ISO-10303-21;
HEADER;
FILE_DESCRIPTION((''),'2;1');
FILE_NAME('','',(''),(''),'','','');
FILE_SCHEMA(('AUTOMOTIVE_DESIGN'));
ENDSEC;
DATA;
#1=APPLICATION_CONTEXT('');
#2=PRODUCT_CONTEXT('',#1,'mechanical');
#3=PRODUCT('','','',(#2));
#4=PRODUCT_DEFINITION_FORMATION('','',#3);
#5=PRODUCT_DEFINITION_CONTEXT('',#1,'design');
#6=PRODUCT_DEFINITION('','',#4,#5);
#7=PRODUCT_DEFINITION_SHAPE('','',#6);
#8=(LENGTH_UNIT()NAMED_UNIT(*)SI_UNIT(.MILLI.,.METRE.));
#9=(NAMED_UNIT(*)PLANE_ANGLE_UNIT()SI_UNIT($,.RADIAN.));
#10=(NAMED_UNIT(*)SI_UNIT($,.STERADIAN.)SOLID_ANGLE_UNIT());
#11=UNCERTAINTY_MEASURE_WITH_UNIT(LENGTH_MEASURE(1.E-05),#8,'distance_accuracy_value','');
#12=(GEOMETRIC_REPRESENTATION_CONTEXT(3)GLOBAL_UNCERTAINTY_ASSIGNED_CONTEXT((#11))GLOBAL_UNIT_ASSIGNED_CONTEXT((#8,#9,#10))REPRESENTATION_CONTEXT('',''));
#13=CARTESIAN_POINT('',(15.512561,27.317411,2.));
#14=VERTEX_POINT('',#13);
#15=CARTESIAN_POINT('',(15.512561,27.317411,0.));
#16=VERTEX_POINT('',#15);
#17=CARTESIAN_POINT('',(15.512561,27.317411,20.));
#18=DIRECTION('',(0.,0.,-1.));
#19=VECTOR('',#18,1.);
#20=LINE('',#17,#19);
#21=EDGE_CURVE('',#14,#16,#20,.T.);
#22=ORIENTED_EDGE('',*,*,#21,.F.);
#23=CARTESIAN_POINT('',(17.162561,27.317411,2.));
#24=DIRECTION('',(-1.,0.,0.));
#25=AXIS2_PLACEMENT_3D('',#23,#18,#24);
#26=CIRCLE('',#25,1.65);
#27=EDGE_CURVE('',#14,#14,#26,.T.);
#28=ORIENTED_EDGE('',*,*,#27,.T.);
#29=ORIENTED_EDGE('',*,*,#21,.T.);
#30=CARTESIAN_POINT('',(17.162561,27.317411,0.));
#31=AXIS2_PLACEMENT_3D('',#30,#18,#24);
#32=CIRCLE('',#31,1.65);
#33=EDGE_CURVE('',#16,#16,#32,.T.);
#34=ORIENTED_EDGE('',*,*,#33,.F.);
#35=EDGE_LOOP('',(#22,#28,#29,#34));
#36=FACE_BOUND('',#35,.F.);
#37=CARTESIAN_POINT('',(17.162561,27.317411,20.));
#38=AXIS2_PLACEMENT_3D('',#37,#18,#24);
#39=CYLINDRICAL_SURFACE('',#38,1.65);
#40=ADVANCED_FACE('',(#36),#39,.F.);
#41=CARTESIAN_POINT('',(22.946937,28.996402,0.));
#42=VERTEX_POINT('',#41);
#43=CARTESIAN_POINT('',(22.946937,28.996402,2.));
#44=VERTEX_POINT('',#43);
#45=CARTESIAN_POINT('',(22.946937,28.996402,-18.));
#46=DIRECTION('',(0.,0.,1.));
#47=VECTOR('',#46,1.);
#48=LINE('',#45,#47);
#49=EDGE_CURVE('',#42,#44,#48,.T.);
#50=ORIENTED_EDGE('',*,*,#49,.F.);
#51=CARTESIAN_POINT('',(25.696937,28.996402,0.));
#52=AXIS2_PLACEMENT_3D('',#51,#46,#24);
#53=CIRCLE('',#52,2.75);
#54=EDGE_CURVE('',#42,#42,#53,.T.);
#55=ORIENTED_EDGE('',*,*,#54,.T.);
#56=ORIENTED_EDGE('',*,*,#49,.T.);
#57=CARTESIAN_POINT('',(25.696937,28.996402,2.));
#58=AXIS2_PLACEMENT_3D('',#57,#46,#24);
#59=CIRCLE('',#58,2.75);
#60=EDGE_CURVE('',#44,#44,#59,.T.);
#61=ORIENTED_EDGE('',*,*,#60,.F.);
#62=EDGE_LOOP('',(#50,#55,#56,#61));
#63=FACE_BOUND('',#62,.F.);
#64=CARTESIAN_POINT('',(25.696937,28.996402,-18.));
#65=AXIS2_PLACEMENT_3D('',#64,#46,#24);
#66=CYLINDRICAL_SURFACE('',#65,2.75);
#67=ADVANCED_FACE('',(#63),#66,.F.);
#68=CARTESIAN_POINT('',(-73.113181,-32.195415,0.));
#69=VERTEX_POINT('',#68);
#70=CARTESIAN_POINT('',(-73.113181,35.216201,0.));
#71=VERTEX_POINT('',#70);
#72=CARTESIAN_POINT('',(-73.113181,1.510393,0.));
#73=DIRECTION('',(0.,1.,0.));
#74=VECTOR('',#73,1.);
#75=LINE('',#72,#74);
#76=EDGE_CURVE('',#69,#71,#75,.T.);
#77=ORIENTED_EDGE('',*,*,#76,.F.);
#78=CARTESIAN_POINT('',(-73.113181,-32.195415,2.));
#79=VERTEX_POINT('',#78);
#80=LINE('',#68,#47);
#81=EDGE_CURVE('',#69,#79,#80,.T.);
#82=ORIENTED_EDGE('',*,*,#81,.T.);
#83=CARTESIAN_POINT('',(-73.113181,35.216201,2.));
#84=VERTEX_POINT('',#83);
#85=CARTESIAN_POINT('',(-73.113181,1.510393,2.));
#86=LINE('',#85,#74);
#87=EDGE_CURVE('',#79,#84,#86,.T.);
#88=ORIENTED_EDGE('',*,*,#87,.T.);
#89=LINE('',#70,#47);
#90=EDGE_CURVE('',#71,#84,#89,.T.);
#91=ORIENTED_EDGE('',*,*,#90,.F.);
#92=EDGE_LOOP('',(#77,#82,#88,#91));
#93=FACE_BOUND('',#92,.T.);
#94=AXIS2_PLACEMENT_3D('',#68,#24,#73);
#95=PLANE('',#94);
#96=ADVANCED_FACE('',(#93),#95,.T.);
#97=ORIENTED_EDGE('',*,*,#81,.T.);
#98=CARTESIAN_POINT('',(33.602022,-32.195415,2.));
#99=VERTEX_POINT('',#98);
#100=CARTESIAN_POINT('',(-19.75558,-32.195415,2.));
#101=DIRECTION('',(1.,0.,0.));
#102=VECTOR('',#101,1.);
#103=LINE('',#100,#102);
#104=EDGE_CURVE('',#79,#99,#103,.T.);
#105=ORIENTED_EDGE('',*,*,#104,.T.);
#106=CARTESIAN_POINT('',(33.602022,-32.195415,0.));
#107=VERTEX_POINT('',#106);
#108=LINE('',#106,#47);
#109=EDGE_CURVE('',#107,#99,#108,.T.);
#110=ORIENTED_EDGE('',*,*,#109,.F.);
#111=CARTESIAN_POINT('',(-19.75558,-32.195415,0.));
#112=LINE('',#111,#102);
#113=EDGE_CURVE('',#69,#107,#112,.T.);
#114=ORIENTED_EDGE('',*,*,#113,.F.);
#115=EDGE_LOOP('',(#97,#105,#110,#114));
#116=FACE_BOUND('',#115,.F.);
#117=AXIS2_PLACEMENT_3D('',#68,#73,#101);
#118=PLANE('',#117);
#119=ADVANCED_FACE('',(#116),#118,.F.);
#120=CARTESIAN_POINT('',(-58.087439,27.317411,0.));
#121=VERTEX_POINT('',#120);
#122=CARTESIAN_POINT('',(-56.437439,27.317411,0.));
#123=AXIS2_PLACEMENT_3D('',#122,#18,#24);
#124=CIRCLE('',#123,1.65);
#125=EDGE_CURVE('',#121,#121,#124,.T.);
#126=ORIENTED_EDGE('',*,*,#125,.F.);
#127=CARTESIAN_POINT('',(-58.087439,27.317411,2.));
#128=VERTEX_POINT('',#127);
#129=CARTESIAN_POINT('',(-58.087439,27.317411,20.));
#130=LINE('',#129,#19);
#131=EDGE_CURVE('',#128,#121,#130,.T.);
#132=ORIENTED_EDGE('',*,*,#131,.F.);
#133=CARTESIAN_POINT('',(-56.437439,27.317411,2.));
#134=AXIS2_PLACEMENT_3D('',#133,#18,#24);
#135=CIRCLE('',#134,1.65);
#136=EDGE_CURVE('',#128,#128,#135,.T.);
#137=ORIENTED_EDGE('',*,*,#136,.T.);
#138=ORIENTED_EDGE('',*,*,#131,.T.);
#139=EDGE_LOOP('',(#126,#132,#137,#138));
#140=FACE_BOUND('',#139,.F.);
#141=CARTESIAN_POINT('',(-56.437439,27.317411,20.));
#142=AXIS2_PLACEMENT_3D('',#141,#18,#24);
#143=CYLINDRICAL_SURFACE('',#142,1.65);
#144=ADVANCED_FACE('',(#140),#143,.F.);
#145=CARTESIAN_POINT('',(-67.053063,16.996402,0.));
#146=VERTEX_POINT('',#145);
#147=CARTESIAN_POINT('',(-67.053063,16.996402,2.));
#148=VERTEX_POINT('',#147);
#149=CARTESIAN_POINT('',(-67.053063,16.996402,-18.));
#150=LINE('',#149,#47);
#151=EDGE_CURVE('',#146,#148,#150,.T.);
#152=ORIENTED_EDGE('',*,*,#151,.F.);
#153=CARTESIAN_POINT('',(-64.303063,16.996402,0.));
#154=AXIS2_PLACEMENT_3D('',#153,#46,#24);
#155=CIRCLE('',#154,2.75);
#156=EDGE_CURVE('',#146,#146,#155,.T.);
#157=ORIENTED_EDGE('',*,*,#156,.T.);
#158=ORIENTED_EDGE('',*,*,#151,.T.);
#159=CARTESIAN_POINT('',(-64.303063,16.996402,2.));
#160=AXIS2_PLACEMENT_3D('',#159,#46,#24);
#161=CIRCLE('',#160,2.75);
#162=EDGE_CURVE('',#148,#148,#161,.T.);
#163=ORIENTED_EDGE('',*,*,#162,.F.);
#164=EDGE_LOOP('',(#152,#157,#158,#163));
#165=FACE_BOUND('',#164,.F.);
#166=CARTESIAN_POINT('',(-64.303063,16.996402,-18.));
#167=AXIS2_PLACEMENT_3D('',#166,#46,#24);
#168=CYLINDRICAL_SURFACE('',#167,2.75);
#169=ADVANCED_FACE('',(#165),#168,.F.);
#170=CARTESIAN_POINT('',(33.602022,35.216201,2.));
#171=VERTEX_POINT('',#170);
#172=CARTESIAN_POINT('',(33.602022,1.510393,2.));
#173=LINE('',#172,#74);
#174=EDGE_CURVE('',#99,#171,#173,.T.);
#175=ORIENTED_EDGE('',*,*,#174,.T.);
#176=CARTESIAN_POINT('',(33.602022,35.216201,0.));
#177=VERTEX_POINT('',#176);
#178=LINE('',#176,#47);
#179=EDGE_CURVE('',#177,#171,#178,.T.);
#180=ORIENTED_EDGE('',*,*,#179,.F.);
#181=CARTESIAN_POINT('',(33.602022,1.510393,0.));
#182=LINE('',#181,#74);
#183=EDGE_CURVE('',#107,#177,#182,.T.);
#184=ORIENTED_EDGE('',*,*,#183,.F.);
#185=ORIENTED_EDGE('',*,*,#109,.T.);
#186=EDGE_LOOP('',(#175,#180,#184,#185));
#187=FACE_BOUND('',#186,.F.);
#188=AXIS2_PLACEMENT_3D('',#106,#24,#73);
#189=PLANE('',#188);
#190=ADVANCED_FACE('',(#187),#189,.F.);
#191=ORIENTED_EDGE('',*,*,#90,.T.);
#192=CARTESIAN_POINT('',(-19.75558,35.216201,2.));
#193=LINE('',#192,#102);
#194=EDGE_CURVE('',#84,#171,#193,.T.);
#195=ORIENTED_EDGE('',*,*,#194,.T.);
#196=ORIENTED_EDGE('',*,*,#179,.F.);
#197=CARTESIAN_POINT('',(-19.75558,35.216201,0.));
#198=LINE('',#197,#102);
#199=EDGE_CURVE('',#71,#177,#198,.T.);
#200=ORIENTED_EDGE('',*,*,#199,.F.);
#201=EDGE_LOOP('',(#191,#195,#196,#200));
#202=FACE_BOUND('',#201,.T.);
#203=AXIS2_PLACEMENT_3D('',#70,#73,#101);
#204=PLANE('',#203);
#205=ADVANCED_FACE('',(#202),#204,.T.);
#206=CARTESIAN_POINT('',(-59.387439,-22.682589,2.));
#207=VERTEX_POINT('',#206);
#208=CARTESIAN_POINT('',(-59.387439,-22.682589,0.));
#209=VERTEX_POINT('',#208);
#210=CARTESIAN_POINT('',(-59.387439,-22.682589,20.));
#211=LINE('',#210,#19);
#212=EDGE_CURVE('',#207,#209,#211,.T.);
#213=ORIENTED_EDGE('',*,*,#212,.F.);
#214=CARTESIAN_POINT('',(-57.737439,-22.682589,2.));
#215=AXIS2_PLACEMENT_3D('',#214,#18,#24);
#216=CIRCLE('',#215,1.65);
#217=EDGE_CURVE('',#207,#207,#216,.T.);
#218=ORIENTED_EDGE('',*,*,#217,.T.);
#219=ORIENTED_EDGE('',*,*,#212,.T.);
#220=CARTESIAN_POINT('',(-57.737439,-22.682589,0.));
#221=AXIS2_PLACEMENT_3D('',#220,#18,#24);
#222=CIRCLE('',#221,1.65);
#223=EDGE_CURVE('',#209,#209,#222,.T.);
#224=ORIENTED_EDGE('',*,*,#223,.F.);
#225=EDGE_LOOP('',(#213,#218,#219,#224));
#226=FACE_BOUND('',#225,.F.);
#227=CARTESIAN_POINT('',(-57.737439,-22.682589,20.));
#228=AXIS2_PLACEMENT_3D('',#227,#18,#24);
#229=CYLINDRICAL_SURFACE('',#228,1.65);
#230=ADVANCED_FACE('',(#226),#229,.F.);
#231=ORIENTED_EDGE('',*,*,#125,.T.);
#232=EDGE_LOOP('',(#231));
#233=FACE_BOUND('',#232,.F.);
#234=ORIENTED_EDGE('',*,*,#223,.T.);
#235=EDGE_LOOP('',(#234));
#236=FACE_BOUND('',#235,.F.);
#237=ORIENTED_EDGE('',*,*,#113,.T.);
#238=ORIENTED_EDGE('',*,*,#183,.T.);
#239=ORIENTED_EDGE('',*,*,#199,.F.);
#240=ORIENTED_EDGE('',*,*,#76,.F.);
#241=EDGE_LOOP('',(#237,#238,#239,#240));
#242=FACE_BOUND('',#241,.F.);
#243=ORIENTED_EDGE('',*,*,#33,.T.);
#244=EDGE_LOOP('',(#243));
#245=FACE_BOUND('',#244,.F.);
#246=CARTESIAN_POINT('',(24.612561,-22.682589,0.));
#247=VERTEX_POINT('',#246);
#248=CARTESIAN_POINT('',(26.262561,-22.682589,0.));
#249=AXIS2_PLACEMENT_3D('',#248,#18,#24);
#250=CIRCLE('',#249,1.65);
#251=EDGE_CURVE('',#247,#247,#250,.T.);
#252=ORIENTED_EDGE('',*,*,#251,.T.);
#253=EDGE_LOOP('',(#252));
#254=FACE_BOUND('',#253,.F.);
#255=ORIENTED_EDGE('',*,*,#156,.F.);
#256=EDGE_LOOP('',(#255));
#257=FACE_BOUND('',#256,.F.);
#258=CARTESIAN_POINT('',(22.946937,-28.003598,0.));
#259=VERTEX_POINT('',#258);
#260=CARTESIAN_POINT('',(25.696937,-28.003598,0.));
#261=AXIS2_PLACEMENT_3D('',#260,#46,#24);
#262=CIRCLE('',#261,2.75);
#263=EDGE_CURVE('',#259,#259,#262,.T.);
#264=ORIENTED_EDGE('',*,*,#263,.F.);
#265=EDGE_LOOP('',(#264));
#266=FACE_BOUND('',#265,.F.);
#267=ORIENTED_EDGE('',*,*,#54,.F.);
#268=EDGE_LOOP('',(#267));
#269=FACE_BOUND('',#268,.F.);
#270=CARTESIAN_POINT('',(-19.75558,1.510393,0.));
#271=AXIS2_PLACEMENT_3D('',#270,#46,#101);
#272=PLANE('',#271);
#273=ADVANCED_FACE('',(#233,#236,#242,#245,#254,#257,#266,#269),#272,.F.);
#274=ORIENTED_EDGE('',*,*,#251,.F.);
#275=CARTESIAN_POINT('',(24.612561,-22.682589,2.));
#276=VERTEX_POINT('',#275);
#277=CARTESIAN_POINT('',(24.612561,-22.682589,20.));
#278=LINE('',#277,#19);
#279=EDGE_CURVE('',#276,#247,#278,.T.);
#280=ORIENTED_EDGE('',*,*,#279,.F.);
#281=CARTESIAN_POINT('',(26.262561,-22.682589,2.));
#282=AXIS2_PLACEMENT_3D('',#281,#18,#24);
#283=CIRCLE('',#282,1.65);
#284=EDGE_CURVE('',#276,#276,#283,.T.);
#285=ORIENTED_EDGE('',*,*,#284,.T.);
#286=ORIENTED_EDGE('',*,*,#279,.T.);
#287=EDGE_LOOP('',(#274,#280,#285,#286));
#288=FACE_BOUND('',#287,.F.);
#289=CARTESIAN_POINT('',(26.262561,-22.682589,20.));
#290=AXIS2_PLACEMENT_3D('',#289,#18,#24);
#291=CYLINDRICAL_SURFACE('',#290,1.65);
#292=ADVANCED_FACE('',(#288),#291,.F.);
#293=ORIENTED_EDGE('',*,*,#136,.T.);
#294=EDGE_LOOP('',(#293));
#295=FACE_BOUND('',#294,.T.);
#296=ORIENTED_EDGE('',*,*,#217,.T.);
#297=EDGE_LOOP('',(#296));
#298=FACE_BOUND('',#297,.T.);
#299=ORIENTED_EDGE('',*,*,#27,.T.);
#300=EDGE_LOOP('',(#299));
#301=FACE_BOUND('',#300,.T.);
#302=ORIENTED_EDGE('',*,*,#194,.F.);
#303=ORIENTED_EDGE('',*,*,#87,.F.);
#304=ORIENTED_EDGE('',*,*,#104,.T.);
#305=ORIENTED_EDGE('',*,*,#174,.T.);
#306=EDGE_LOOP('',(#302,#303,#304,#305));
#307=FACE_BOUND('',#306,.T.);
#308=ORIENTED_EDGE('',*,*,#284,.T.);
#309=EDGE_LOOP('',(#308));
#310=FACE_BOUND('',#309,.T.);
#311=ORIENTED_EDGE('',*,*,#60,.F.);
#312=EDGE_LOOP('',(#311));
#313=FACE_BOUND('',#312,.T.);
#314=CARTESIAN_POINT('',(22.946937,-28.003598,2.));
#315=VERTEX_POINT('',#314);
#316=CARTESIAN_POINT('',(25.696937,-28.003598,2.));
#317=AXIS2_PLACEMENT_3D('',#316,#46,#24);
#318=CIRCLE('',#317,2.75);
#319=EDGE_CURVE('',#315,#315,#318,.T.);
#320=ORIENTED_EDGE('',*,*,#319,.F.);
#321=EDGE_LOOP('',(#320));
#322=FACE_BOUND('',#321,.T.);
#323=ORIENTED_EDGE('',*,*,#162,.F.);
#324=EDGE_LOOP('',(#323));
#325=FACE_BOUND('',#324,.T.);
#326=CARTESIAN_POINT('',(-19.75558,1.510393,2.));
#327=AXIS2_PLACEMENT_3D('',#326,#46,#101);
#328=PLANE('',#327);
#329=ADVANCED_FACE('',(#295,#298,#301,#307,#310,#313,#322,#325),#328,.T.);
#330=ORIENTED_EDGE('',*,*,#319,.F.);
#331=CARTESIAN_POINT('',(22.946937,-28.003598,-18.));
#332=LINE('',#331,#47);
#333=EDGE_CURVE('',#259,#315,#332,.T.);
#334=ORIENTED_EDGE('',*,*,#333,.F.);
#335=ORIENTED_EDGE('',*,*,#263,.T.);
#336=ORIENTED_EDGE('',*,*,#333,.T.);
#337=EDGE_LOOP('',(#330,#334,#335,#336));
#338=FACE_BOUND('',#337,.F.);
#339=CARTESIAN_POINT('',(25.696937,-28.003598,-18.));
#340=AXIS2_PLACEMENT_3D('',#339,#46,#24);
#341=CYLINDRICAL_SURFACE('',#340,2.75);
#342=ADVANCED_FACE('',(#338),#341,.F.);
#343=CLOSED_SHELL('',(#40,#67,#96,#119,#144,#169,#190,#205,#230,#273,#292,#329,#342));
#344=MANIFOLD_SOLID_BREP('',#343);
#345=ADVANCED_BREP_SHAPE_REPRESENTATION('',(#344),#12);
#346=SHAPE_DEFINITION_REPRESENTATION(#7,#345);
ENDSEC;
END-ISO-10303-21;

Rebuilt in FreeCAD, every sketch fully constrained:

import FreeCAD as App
import Part
import Sketcher

V = App.Vector
Q = App.Units.Quantity


def add_polygon(sketch, points):
    """Adds a closed chain of lines whose ends are joined by coincident constraints."""
    first, n = sketch.GeometryCount, len(points)
    for a, b in zip(points, points[1:] + points[:1]):
        sketch.addGeometry(Part.LineSegment(App.Vector(*a, 0), App.Vector(*b, 0)), False)
    for i in range(n):
        sketch.addConstraint(Sketcher.Constraint("Coincident", first + i, 2, first + (i + 1) % n, 1))

doc = App.newDocument("Part")
params = doc.addObject("Spreadsheet::Sheet", "Params")
for row, (alias, value) in enumerate([
    ("pad1_length", "2 mm"),
    ("sketch2_diameter", "5.5 mm"),
    ("hole_diameter", "5.5 mm"),
    ("hole_depth", "18 mm"),
    ("sketch3_diameter", "3.3 mm"),
    ("hole2_diameter", "3.3 mm"),
    ("hole2_depth", "18 mm"),
], start=1):
    params.set(f"A{row}", alias)
    params.set(f"B{row}", "=" + value)
    params.setAlias(f"B{row}", alias)

body = doc.addObject("PartDesign::Body", "Body")

# Sketch on XY plane
sketch1 = body.newObject("Sketcher::SketchObject", "Sketch")
sketch1.AttachmentSupport = (doc.getObject("XY_Plane"), [""])
sketch1.MapMode = "FlatFace"
add_polygon(sketch1, [(-73, 35), (-73, -32), (34, -32), (34, 35)])  # lines 0-3
sketch1.addConstraint([
    Sketcher.Constraint("Vertical", 0),
    Sketcher.Constraint("Horizontal", 1),
    Sketcher.Constraint("Vertical", 2),
    Sketcher.Constraint("Horizontal", 3),
    Sketcher.Constraint("DistanceY", -1, 1, 2, 2, Q("35.216201 mm")),
    Sketcher.Constraint("DistanceX", 1, 1, 1, 2, Q("106.715202 mm")),
    Sketcher.Constraint("DistanceY", 0, 2, 0, 1, Q("67.411616 mm")),
    Sketcher.Constraint("DistanceX", 0, 2, -1, 1, Q("73.113181 mm")),
])
pad1 = body.newObject("PartDesign::Pad", "Pad")
pad1.Profile = sketch1
pad1.setExpression("Length", "Params.pad1_length")

# Sketch on XY plane
sketch2 = body.newObject("Sketcher::SketchObject", "Sketch001")
sketch2.AttachmentSupport = (doc.getObject("XY_Plane"), [""])
sketch2.MapMode = "FlatFace"
sketch2.addGeometry([
    Part.Circle(V(-64.3, 17, 0), V(0, 0, 1), 2.8),
    Part.Circle(V(25.7, 29, 0), V(0, 0, 1), 2.8),
    Part.Circle(V(25.7, -28, 0), V(0, 0, 1), 2.8),
], False)
sketch2.addConstraint([
    Sketcher.Constraint("Equal", 0, 1),
    Sketcher.Constraint("Equal", 1, 2),
    Sketcher.Constraint("Vertical", 1, 3, 2, 3),
    Sketcher.Constraint("Diameter", 0, Q("5.5 mm")),
    Sketcher.Constraint("DistanceX", 0, 3, 1, 3, Q("90 mm")),
    Sketcher.Constraint("DistanceY", 0, 3, 1, 3, Q("12 mm")),
    Sketcher.Constraint("DistanceY", 2, 3, 1, 3, Q("57 mm")),
    Sketcher.Constraint("DistanceX", 0, 3, -1, 1, Q("64.303063 mm")),
    Sketcher.Constraint("DistanceY", -1, 1, 0, 3, Q("16.996402 mm")),
])
sketch2.setExpression("Constraints[3]", "Params.sketch2_diameter")
doc.recompute()
hole = body.newObject("PartDesign::Hole", "Hole")
hole.Profile = sketch2
hole.ThreadType = "None"
hole.setExpression("Diameter", "Params.hole_diameter")
hole.DepthType = "Dimension"
hole.setExpression("Depth", "Params.hole_depth")
hole.DrillPoint = "Angled"
hole.DrillPointAngle = 118
hole.Reversed = True

# Sketch on XY plane
sketch3 = body.newObject("Sketcher::SketchObject", "Sketch002")
sketch3.AttachmentSupport = (doc.getObject("XY_Plane"), [""])
sketch3.MapMode = "FlatFace"
sketch3.AttachmentOffset = App.Placement(V(0, 0, 2), App.Rotation())
sketch3.addGeometry([
    Part.Circle(V(-56.4, 27.3, 0), V(0, 0, 1), 1.6),
    Part.Circle(V(17.2, 27.3, 0), V(0, 0, 1), 1.6),
    Part.Circle(V(-57.7, -22.7, 0), V(0, 0, 1), 1.6),
    Part.Circle(V(26.3, -22.7, 0), V(0, 0, 1), 1.6),
], False)
sketch3.addConstraint([
    Sketcher.Constraint("Equal", 0, 1),
    Sketcher.Constraint("Equal", 1, 2),
    Sketcher.Constraint("Equal", 2, 3),
    Sketcher.Constraint("Horizontal", 0, 3, 1, 3),
    Sketcher.Constraint("Horizontal", 2, 3, 3, 3),
    Sketcher.Constraint("Diameter", 0, Q("3.3 mm")),
    Sketcher.Constraint("DistanceY", 2, 3, 0, 3, Q("50 mm")),
    Sketcher.Constraint("DistanceX", 2, 3, 3, 3, Q("84 mm")),
    Sketcher.Constraint("DistanceX", 0, 3, 1, 3, Q("73.6 mm")),
    Sketcher.Constraint("DistanceX", 2, 3, 0, 3, Q("1.3 mm")),
    Sketcher.Constraint("DistanceX", 0, 3, -1, 1, Q("56.437439 mm")),
    Sketcher.Constraint("DistanceY", -1, 1, 0, 3, Q("27.317411 mm")),
])
sketch3.setExpression("Constraints[5]", "Params.sketch3_diameter")
doc.recompute()
hole2 = body.newObject("PartDesign::Hole", "Hole001")
hole2.Profile = sketch3
hole2.ThreadType = "None"
hole2.setExpression("Diameter", "Params.hole2_diameter")
hole2.DepthType = "Dimension"
hole2.setExpression("Depth", "Params.hole2_depth")
hole2.DrillPoint = "Angled"
hole2.DrillPointAngle = 118

doc.recompute()
